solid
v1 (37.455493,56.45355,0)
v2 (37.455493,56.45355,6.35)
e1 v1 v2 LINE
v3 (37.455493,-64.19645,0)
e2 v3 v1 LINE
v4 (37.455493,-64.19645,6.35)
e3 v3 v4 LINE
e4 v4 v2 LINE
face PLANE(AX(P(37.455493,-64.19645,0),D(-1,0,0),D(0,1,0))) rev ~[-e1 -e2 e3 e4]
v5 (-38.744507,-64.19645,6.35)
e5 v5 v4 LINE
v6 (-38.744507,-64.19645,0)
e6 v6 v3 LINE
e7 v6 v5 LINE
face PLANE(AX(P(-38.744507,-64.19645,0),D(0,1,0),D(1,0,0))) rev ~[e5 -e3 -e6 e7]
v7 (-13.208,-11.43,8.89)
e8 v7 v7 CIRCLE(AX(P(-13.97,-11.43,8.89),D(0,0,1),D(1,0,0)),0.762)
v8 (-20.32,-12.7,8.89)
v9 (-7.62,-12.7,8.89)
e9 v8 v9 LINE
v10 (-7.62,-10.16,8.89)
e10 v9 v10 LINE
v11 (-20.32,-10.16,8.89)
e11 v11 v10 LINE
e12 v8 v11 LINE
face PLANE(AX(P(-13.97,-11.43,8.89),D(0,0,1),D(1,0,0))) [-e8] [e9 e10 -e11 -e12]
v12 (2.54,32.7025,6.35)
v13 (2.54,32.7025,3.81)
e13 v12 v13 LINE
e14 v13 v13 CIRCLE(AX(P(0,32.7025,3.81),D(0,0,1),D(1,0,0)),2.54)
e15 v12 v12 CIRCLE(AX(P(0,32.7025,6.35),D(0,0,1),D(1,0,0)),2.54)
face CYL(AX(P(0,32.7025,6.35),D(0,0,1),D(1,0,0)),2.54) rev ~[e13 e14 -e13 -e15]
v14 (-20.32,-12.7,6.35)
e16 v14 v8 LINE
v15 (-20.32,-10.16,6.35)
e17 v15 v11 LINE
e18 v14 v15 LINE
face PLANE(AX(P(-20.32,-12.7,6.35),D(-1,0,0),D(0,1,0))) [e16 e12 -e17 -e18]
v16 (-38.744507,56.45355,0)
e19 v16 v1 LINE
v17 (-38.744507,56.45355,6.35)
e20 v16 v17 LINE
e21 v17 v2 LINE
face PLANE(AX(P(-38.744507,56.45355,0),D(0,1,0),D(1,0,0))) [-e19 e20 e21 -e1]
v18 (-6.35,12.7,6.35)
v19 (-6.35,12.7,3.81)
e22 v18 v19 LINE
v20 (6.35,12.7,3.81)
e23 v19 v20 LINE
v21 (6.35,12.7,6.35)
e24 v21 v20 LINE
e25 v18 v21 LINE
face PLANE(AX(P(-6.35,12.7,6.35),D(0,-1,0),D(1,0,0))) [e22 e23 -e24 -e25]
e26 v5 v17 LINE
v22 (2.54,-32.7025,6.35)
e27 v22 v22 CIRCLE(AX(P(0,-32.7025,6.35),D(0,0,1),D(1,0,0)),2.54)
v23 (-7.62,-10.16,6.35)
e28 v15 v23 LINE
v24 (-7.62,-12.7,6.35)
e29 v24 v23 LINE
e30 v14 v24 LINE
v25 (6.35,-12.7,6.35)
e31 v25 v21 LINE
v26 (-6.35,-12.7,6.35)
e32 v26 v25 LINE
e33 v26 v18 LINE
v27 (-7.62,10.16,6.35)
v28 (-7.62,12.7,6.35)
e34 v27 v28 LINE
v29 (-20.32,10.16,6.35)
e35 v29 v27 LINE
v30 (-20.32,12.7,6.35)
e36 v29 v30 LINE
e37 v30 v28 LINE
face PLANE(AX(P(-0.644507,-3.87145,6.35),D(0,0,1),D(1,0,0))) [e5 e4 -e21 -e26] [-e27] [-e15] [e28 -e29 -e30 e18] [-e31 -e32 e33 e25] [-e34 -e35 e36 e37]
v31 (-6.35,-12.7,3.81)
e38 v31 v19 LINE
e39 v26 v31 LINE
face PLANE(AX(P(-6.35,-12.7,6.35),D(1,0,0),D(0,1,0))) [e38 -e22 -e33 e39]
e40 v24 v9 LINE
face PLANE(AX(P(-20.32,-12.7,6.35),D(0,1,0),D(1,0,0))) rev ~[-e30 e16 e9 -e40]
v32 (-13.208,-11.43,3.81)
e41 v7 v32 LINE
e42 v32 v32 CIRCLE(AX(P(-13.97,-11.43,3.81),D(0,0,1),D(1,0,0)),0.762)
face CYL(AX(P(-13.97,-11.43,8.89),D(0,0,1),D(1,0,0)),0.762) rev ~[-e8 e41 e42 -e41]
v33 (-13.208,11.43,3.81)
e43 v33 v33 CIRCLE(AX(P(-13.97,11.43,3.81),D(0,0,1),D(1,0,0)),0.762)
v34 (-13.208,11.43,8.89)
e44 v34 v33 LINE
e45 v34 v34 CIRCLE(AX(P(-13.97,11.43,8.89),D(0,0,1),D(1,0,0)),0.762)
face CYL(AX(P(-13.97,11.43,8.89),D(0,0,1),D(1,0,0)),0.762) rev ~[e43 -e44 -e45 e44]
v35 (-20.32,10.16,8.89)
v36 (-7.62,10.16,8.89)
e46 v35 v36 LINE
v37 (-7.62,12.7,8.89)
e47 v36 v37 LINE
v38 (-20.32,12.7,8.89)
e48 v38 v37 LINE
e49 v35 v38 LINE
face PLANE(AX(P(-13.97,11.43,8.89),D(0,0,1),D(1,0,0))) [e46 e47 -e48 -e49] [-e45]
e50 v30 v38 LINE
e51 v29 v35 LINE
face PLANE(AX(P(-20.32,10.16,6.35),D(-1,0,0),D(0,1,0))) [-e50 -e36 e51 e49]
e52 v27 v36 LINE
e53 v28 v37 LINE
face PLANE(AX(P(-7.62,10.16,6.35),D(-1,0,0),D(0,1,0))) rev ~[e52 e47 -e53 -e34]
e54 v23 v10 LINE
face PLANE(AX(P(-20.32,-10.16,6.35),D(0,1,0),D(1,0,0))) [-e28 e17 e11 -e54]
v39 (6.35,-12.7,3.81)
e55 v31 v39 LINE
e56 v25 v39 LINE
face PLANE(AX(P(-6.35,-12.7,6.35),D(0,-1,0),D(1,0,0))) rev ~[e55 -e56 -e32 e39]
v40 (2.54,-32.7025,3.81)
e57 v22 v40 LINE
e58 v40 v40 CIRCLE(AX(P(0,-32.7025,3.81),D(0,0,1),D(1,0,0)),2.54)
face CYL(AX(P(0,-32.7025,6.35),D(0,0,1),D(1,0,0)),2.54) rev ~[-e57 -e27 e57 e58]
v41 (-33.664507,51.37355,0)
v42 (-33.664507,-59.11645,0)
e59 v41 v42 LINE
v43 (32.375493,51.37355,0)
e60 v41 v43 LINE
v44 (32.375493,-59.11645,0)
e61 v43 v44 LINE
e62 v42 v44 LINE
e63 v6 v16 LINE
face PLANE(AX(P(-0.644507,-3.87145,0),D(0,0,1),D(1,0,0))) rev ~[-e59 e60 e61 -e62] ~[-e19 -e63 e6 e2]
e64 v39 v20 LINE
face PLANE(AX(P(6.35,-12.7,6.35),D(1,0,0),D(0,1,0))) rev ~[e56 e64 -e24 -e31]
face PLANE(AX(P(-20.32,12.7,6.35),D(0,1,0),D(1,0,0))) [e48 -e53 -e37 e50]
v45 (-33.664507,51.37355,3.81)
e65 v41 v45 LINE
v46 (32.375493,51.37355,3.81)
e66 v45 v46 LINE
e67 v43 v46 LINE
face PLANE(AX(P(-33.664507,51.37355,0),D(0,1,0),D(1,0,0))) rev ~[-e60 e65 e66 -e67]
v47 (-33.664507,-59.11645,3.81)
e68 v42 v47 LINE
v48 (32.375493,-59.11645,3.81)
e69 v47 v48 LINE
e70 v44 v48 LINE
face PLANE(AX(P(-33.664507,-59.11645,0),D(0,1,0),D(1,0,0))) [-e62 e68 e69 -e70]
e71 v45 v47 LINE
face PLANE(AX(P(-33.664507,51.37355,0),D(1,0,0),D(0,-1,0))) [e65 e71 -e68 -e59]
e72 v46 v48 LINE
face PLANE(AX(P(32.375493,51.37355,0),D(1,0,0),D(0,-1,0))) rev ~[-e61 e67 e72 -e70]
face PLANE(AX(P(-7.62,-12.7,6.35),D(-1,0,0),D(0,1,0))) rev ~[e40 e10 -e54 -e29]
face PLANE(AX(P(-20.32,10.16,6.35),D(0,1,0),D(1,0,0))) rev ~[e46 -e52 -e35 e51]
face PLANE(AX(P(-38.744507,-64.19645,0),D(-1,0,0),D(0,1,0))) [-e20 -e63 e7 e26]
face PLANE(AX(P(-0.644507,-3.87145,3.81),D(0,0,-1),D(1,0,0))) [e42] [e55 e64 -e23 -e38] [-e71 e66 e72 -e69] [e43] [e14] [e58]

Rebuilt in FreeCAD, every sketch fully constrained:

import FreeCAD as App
import Part
import Sketcher
from FreeCAD import Vector
Q = App.Units.Quantity

doc = App.newDocument("Part")
params = doc.addObject("Spreadsheet::Sheet", "Params")
for row, (alias, value) in enumerate([
    ("sketch1_width", "3 in"),
    ("sketch1_height", "4.75 in"),
    ("pad1_length", "0.25 in"),
    ("sketch2_height", "1 in"),
    ("sketch2_width", "0.5 in"),
    ("pocket1_length", "0.25 in"),
    ("sketch3_diameter", "0.2 in"),
    ("pocket2_length", "0.25 in"),
    ("sketch4_width", "0.5 in"),
    ("sketch4_height", "0.1 in"),
    ("pad2_length", "0.1 in"),
    ("sketch5_diameter", "0.06 in"),
    ("pocket3_length", "0.47 in"),
    ("sketch6_width", "2.6 in"),
    ("sketch6_height", "4.35 in"),
    ("pocket4_length", "0.15 in"),
], start=1):
    params.set(f"A{row}", alias)
    params.set(f"B{row}", "=" + value)
    params.setAlias(f"B{row}", alias)

body = doc.addObject("PartDesign::Body", "Body")

sketch1 = body.newObject("Sketcher::SketchObject", "Sketch")
sketch1.AttachmentSupport = (doc.getObject("XY_Plane"), [""])
sketch1.MapMode = "FlatFace"
sketch1.addGeometry(Part.LineSegment(Vector(-39, 56, 0), Vector(-39, -64, 0)), False)
sketch1.addGeometry(Part.LineSegment(Vector(-39, -64, 0), Vector(37, -64, 0)), False)
sketch1.addGeometry(Part.LineSegment(Vector(37, -64, 0), Vector(37, 56, 0)), False)
sketch1.addGeometry(Part.LineSegment(Vector(37, 56, 0), Vector(-39, 56, 0)), False)
sketch1.addConstraint(Sketcher.Constraint("Coincident", 0, 2, 1, 1))
sketch1.addConstraint(Sketcher.Constraint("Coincident", 1, 2, 2, 1))
sketch1.addConstraint(Sketcher.Constraint("Coincident", 2, 2, 3, 1))
sketch1.addConstraint(Sketcher.Constraint("Coincident", 3, 2, 0, 1))
sketch1.addConstraint(Sketcher.Constraint("Vertical", 0))
sketch1.addConstraint(Sketcher.Constraint("Horizontal", 1))
sketch1.addConstraint(Sketcher.Constraint("Vertical", 2))
sketch1.addConstraint(Sketcher.Constraint("Horizontal", 3))
sketch1.addConstraint(Sketcher.Constraint("DistanceX", 1, 1, 1, 2, Q("3 in")))
sketch1.addConstraint(Sketcher.Constraint("DistanceY", 0, 2, 0, 1, Q("4.75 in")))
sketch1.addConstraint(Sketcher.Constraint("DistanceY", 0, 2, -1, 1, 64.19645))
sketch1.addConstraint(Sketcher.Constraint("DistanceX", 0, 2, -1, 1, 38.744507))
sketch1.setExpression("Constraints[8]", "Params.sketch1_width")
sketch1.setExpression("Constraints[9]", "Params.sketch1_height")
pad1 = body.newObject("PartDesign::Pad", "Pad")
pad1.Profile = sketch1
pad1.setExpression("Length", "Params.pad1_length")

sketch2 = body.newObject("Sketcher::SketchObject", "Sketch001")
sketch2.AttachmentSupport = (doc.getObject("XY_Plane"), [""])
sketch2.MapMode = "FlatFace"
sketch2.AttachmentOffset = App.Placement(Vector(0, 0, 0.25 * 25.4), App.Rotation())
sketch2.addGeometry(Part.LineSegment(Vector(-6, 13, 0), Vector(-6, -13, 0)), False)
sketch2.addGeometry(Part.LineSegment(Vector(-6, -13, 0), Vector(6, -13, 0)), False)
sketch2.addGeometry(Part.LineSegment(Vector(6, -13, 0), Vector(6, 13, 0)), False)
sketch2.addGeometry(Part.LineSegment(Vector(6, 13, 0), Vector(-6, 13, 0)), False)
sketch2.addConstraint(Sketcher.Constraint("Coincident", 0, 2, 1, 1))
sketch2.addConstraint(Sketcher.Constraint("Coincident", 1, 2, 2, 1))
sketch2.addConstraint(Sketcher.Constraint("Coincident", 2, 2, 3, 1))
sketch2.addConstraint(Sketcher.Constraint("Coincident", 3, 2, 0, 1))
sketch2.addConstraint(Sketcher.Constraint("Vertical", 0))
sketch2.addConstraint(Sketcher.Constraint("Horizontal", 1))
sketch2.addConstraint(Sketcher.Constraint("Vertical", 2))
sketch2.addConstraint(Sketcher.Constraint("Horizontal", 3))
sketch2.addConstraint(Sketcher.Constraint("Symmetric", 0, 2, 2, 2, -1, 1))
sketch2.addConstraint(Sketcher.Constraint("DistanceY", 0, 2, 0, 1, Q("1 in")))
sketch2.addConstraint(Sketcher.Constraint("DistanceX", 1, 1, 1, 2, Q("0.5 in")))
sketch2.setExpression("Constraints[9]", "Params.sketch2_height")
sketch2.setExpression("Constraints[10]", "Params.sketch2_width")
pocket1 = body.newObject("PartDesign::Pocket", "Pocket")
pocket1.Profile = sketch2
pocket1.setExpression("Length", "Params.pocket1_length")

sketch3 = body.newObject("Sketcher::SketchObject", "Sketch002")
sketch3.AttachmentSupport = (doc.getObject("XY_Plane"), [""])
sketch3.MapMode = "FlatFace"
sketch3.AttachmentOffset = App.Placement(Vector(0, 0, 0.25 * 25.4), App.Rotation())
sketch3.addGeometry(Part.Circle(Vector(0, -32.7, 0), Vector(0, 0, 1), 2.5), False)
sketch3.addGeometry(Part.Circle(Vector(0, 32.7, 0), Vector(0, 0, 1), 2.5), False)
sketch3.addConstraint(Sketcher.Constraint("Equal", 0, 1))
sketch3.addConstraint(Sketcher.Constraint("Symmetric", 0, 3, 1, 3, -1, 1))
sketch3.addConstraint(Sketcher.Constraint("PointOnObject", 0, 3, -2))
sketch3.addConstraint(Sketcher.Constraint("Diameter", 0, Q("0.2 in")))
sketch3.addConstraint(Sketcher.Constraint("DistanceY", 0, 3, 1, 3, Q("2.575 in")))
sketch3.setExpression("Constraints[3]", "Params.sketch3_diameter")
pocket2 = body.newObject("PartDesign::Pocket", "Pocket001")
pocket2.Profile = sketch3
pocket2.setExpression("Length", "Params.pocket2_length")

sketch4 = body.newObject("Sketcher::SketchObject", "Sketch003")
sketch4.AttachmentSupport = (doc.getObject("XY_Plane"), [""])
sketch4.MapMode = "FlatFace"
sketch4.AttachmentOffset = App.Placement(Vector(0, 0, 0.25 * 25.4), App.Rotation())
sketch4.addGeometry(Part.LineSegment(Vector(-20.3, 12.7, 0), Vector(-20.3, 10.2, 0)), False)
sketch4.addGeometry(Part.LineSegment(Vector(-20.3, 10.2, 0), Vector(-7.6, 10.2, 0)), False)
sketch4.addGeometry(Part.LineSegment(Vector(-7.6, 10.2, 0), Vector(-7.6, 12.7, 0)), False)
sketch4.addGeometry(Part.LineSegment(Vector(-7.6, 12.7, 0), Vector(-20.3, 12.7, 0)), False)
sketch4.addGeometry(Part.LineSegment(Vector(-20.3, -10.2, 0), Vector(-20.3, -12.7, 0)), False)
sketch4.addGeometry(Part.LineSegment(Vector(-20.3, -12.7, 0), Vector(-7.6, -12.7, 0)), False)
sketch4.addGeometry(Part.LineSegment(Vector(-7.6, -12.7, 0), Vector(-7.6, -10.2, 0)), False)
sketch4.addGeometry(Part.LineSegment(Vector(-7.6, -10.2, 0), Vector(-20.3, -10.2, 0)), False)
sketch4.addConstraint(Sketcher.Constraint("Coincident", 0, 2, 1, 1))
sketch4.addConstraint(Sketcher.Constraint("Coincident", 1, 2, 2, 1))
sketch4.addConstraint(Sketcher.Constraint("Coincident", 2, 2, 3, 1))
sketch4.addConstraint(Sketcher.Constraint("Coincident", 3, 2, 0, 1))
sketch4.addConstraint(Sketcher.Constraint("Coincident", 4, 2, 5, 1))
sketch4.addConstraint(Sketcher.Constraint("Coincident", 5, 2, 6, 1))
sketch4.addConstraint(Sketcher.Constraint("Coincident", 6, 2, 7, 1))
sketch4.addConstraint(Sketcher.Constraint("Coincident", 7, 2, 4, 1))
sketch4.addConstraint(Sketcher.Constraint("Vertical", 0))
sketch4.addConstraint(Sketcher.Constraint("Horizontal", 1))
sketch4.addConstraint(Sketcher.Constraint("Vertical", 2))
sketch4.addConstraint(Sketcher.Constraint("Horizontal", 3))
sketch4.addConstraint(Sketcher.Constraint("Vertical", 4))
sketch4.addConstraint(Sketcher.Constraint("Horizontal", 5))
sketch4.addConstraint(Sketcher.Constraint("Vertical", 6))
sketch4.addConstraint(Sketcher.Constraint("Horizontal", 7))
sketch4.addConstraint(Sketcher.Constraint("Symmetric", 3, 2, 4, 2, -1))
sketch4.addConstraint(Sketcher.Constraint("Symmetric", 1, 2, 6, 2, -1))
sketch4.addConstraint(Sketcher.Constraint("DistanceX", 1, 1, 1, 2, Q("0.5 in")))
sketch4.addConstraint(Sketcher.Constraint("DistanceY", 0, 2, 0, 1, Q("0.1 in")))
sketch4.addConstraint(Sketcher.Constraint("DistanceY", 4, 2, 3, 2, Q("1 in")))
sketch4.addConstraint(Sketcher.Constraint("DistanceX", 0, 2, -1, 1, Q("0.8 in")))
sketch4.setExpression("Constraints[18]", "Params.sketch4_width")
sketch4.setExpression("Constraints[19]", "Params.sketch4_height")
pad2 = body.newObject("PartDesign::Pad", "Pad001")
pad2.Profile = sketch4
pad2.setExpression("Length", "Params.pad2_length")

sketch5 = body.newObject("Sketcher::SketchObject", "Sketch004")
sketch5.AttachmentSupport = (doc.getObject("XY_Plane"), [""])
sketch5.MapMode = "FlatFace"
sketch5.AttachmentOffset = App.Placement(Vector(0, 0, 0.35 * 25.4), App.Rotation())
sketch5.addGeometry(Part.Circle(Vector(-14, 11.4, 0), Vector(0, 0, 1), 0.8), False)
sketch5.addGeometry(Part.Circle(Vector(-14, -11.4, 0), Vector(0, 0, 1), 0.8), False)
sketch5.addConstraint(Sketcher.Constraint("Equal", 0, 1))
sketch5.addConstraint(Sketcher.Constraint("Symmetric", 0, 3, 1, 3, -1))
sketch5.addConstraint(Sketcher.Constraint("Diameter", 0, Q("0.06 in")))
sketch5.addConstraint(Sketcher.Constraint("DistanceY", 1, 3, 0, 3, Q("0.9 in")))
sketch5.addConstraint(Sketcher.Constraint("DistanceX", 0, 3, -1, 1, Q("0.55 in")))
sketch5.setExpression("Constraints[2]", "Params.sketch5_diameter")
pocket3 = body.newObject("PartDesign::Pocket", "Pocket002")
pocket3.Profile = sketch5
pocket3.setExpression("Length", "Params.pocket3_length")

sketch6 = body.newObject("Sketcher::SketchObject", "Sketch005")
sketch6.AttachmentSupport = (doc.getObject("XY_Plane"), [""])
sketch6.MapMode = "FlatFace"
sketch6.addGeometry(Part.LineSegment(Vector(-34, -59, 0), Vector(-34, 51, 0)), False)
sketch6.addGeometry(Part.LineSegment(Vector(-34, 51, 0), Vector(32, 51, 0)), False)
sketch6.addGeometry(Part.LineSegment(Vector(32, 51, 0), Vector(32, -59, 0)), False)
sketch6.addGeometry(Part.LineSegment(Vector(32, -59, 0), Vector(-34, -59, 0)), False)
sketch6.addConstraint(Sketcher.Constraint("Coincident", 0, 2, 1, 1))
sketch6.addConstraint(Sketcher.Constraint("Coincident", 1, 2, 2, 1))
sketch6.addConstraint(Sketcher.Constraint("Coincident", 2, 2, 3, 1))
sketch6.addConstraint(Sketcher.Constraint("Coincident", 3, 2, 0, 1))
sketch6.addConstraint(Sketcher.Constraint("Vertical", 0))
sketch6.addConstraint(Sketcher.Constraint("Horizontal", 1))
sketch6.addConstraint(Sketcher.Constraint("Vertical", 2))
sketch6.addConstraint(Sketcher.Constraint("Horizontal", 3))
sketch6.addConstraint(Sketcher.Constraint("DistanceX", 1, 1, 1, 2, Q("2.6 in")))
sketch6.addConstraint(Sketcher.Constraint("DistanceY", 0, 1, 0, 2, Q("4.35 in")))
sketch6.addConstraint(Sketcher.Constraint("DistanceY", -1, 1, 0, 2, 51.37355))
sketch6.addConstraint(Sketcher.Constraint("DistanceX", 0, 2, -1, 1, 33.664507))
sketch6.setExpression("Constraints[8]", "Params.sketch6_width")
sketch6.setExpression("Constraints[9]", "Params.sketch6_height")
pocket4 = body.newObject("PartDesign::Pocket", "Pocket003")
pocket4.Profile = sketch6
pocket4.setExpression("Length", "Params.pocket4_length")
pocket4.Reversed = True

doc.recompute()
